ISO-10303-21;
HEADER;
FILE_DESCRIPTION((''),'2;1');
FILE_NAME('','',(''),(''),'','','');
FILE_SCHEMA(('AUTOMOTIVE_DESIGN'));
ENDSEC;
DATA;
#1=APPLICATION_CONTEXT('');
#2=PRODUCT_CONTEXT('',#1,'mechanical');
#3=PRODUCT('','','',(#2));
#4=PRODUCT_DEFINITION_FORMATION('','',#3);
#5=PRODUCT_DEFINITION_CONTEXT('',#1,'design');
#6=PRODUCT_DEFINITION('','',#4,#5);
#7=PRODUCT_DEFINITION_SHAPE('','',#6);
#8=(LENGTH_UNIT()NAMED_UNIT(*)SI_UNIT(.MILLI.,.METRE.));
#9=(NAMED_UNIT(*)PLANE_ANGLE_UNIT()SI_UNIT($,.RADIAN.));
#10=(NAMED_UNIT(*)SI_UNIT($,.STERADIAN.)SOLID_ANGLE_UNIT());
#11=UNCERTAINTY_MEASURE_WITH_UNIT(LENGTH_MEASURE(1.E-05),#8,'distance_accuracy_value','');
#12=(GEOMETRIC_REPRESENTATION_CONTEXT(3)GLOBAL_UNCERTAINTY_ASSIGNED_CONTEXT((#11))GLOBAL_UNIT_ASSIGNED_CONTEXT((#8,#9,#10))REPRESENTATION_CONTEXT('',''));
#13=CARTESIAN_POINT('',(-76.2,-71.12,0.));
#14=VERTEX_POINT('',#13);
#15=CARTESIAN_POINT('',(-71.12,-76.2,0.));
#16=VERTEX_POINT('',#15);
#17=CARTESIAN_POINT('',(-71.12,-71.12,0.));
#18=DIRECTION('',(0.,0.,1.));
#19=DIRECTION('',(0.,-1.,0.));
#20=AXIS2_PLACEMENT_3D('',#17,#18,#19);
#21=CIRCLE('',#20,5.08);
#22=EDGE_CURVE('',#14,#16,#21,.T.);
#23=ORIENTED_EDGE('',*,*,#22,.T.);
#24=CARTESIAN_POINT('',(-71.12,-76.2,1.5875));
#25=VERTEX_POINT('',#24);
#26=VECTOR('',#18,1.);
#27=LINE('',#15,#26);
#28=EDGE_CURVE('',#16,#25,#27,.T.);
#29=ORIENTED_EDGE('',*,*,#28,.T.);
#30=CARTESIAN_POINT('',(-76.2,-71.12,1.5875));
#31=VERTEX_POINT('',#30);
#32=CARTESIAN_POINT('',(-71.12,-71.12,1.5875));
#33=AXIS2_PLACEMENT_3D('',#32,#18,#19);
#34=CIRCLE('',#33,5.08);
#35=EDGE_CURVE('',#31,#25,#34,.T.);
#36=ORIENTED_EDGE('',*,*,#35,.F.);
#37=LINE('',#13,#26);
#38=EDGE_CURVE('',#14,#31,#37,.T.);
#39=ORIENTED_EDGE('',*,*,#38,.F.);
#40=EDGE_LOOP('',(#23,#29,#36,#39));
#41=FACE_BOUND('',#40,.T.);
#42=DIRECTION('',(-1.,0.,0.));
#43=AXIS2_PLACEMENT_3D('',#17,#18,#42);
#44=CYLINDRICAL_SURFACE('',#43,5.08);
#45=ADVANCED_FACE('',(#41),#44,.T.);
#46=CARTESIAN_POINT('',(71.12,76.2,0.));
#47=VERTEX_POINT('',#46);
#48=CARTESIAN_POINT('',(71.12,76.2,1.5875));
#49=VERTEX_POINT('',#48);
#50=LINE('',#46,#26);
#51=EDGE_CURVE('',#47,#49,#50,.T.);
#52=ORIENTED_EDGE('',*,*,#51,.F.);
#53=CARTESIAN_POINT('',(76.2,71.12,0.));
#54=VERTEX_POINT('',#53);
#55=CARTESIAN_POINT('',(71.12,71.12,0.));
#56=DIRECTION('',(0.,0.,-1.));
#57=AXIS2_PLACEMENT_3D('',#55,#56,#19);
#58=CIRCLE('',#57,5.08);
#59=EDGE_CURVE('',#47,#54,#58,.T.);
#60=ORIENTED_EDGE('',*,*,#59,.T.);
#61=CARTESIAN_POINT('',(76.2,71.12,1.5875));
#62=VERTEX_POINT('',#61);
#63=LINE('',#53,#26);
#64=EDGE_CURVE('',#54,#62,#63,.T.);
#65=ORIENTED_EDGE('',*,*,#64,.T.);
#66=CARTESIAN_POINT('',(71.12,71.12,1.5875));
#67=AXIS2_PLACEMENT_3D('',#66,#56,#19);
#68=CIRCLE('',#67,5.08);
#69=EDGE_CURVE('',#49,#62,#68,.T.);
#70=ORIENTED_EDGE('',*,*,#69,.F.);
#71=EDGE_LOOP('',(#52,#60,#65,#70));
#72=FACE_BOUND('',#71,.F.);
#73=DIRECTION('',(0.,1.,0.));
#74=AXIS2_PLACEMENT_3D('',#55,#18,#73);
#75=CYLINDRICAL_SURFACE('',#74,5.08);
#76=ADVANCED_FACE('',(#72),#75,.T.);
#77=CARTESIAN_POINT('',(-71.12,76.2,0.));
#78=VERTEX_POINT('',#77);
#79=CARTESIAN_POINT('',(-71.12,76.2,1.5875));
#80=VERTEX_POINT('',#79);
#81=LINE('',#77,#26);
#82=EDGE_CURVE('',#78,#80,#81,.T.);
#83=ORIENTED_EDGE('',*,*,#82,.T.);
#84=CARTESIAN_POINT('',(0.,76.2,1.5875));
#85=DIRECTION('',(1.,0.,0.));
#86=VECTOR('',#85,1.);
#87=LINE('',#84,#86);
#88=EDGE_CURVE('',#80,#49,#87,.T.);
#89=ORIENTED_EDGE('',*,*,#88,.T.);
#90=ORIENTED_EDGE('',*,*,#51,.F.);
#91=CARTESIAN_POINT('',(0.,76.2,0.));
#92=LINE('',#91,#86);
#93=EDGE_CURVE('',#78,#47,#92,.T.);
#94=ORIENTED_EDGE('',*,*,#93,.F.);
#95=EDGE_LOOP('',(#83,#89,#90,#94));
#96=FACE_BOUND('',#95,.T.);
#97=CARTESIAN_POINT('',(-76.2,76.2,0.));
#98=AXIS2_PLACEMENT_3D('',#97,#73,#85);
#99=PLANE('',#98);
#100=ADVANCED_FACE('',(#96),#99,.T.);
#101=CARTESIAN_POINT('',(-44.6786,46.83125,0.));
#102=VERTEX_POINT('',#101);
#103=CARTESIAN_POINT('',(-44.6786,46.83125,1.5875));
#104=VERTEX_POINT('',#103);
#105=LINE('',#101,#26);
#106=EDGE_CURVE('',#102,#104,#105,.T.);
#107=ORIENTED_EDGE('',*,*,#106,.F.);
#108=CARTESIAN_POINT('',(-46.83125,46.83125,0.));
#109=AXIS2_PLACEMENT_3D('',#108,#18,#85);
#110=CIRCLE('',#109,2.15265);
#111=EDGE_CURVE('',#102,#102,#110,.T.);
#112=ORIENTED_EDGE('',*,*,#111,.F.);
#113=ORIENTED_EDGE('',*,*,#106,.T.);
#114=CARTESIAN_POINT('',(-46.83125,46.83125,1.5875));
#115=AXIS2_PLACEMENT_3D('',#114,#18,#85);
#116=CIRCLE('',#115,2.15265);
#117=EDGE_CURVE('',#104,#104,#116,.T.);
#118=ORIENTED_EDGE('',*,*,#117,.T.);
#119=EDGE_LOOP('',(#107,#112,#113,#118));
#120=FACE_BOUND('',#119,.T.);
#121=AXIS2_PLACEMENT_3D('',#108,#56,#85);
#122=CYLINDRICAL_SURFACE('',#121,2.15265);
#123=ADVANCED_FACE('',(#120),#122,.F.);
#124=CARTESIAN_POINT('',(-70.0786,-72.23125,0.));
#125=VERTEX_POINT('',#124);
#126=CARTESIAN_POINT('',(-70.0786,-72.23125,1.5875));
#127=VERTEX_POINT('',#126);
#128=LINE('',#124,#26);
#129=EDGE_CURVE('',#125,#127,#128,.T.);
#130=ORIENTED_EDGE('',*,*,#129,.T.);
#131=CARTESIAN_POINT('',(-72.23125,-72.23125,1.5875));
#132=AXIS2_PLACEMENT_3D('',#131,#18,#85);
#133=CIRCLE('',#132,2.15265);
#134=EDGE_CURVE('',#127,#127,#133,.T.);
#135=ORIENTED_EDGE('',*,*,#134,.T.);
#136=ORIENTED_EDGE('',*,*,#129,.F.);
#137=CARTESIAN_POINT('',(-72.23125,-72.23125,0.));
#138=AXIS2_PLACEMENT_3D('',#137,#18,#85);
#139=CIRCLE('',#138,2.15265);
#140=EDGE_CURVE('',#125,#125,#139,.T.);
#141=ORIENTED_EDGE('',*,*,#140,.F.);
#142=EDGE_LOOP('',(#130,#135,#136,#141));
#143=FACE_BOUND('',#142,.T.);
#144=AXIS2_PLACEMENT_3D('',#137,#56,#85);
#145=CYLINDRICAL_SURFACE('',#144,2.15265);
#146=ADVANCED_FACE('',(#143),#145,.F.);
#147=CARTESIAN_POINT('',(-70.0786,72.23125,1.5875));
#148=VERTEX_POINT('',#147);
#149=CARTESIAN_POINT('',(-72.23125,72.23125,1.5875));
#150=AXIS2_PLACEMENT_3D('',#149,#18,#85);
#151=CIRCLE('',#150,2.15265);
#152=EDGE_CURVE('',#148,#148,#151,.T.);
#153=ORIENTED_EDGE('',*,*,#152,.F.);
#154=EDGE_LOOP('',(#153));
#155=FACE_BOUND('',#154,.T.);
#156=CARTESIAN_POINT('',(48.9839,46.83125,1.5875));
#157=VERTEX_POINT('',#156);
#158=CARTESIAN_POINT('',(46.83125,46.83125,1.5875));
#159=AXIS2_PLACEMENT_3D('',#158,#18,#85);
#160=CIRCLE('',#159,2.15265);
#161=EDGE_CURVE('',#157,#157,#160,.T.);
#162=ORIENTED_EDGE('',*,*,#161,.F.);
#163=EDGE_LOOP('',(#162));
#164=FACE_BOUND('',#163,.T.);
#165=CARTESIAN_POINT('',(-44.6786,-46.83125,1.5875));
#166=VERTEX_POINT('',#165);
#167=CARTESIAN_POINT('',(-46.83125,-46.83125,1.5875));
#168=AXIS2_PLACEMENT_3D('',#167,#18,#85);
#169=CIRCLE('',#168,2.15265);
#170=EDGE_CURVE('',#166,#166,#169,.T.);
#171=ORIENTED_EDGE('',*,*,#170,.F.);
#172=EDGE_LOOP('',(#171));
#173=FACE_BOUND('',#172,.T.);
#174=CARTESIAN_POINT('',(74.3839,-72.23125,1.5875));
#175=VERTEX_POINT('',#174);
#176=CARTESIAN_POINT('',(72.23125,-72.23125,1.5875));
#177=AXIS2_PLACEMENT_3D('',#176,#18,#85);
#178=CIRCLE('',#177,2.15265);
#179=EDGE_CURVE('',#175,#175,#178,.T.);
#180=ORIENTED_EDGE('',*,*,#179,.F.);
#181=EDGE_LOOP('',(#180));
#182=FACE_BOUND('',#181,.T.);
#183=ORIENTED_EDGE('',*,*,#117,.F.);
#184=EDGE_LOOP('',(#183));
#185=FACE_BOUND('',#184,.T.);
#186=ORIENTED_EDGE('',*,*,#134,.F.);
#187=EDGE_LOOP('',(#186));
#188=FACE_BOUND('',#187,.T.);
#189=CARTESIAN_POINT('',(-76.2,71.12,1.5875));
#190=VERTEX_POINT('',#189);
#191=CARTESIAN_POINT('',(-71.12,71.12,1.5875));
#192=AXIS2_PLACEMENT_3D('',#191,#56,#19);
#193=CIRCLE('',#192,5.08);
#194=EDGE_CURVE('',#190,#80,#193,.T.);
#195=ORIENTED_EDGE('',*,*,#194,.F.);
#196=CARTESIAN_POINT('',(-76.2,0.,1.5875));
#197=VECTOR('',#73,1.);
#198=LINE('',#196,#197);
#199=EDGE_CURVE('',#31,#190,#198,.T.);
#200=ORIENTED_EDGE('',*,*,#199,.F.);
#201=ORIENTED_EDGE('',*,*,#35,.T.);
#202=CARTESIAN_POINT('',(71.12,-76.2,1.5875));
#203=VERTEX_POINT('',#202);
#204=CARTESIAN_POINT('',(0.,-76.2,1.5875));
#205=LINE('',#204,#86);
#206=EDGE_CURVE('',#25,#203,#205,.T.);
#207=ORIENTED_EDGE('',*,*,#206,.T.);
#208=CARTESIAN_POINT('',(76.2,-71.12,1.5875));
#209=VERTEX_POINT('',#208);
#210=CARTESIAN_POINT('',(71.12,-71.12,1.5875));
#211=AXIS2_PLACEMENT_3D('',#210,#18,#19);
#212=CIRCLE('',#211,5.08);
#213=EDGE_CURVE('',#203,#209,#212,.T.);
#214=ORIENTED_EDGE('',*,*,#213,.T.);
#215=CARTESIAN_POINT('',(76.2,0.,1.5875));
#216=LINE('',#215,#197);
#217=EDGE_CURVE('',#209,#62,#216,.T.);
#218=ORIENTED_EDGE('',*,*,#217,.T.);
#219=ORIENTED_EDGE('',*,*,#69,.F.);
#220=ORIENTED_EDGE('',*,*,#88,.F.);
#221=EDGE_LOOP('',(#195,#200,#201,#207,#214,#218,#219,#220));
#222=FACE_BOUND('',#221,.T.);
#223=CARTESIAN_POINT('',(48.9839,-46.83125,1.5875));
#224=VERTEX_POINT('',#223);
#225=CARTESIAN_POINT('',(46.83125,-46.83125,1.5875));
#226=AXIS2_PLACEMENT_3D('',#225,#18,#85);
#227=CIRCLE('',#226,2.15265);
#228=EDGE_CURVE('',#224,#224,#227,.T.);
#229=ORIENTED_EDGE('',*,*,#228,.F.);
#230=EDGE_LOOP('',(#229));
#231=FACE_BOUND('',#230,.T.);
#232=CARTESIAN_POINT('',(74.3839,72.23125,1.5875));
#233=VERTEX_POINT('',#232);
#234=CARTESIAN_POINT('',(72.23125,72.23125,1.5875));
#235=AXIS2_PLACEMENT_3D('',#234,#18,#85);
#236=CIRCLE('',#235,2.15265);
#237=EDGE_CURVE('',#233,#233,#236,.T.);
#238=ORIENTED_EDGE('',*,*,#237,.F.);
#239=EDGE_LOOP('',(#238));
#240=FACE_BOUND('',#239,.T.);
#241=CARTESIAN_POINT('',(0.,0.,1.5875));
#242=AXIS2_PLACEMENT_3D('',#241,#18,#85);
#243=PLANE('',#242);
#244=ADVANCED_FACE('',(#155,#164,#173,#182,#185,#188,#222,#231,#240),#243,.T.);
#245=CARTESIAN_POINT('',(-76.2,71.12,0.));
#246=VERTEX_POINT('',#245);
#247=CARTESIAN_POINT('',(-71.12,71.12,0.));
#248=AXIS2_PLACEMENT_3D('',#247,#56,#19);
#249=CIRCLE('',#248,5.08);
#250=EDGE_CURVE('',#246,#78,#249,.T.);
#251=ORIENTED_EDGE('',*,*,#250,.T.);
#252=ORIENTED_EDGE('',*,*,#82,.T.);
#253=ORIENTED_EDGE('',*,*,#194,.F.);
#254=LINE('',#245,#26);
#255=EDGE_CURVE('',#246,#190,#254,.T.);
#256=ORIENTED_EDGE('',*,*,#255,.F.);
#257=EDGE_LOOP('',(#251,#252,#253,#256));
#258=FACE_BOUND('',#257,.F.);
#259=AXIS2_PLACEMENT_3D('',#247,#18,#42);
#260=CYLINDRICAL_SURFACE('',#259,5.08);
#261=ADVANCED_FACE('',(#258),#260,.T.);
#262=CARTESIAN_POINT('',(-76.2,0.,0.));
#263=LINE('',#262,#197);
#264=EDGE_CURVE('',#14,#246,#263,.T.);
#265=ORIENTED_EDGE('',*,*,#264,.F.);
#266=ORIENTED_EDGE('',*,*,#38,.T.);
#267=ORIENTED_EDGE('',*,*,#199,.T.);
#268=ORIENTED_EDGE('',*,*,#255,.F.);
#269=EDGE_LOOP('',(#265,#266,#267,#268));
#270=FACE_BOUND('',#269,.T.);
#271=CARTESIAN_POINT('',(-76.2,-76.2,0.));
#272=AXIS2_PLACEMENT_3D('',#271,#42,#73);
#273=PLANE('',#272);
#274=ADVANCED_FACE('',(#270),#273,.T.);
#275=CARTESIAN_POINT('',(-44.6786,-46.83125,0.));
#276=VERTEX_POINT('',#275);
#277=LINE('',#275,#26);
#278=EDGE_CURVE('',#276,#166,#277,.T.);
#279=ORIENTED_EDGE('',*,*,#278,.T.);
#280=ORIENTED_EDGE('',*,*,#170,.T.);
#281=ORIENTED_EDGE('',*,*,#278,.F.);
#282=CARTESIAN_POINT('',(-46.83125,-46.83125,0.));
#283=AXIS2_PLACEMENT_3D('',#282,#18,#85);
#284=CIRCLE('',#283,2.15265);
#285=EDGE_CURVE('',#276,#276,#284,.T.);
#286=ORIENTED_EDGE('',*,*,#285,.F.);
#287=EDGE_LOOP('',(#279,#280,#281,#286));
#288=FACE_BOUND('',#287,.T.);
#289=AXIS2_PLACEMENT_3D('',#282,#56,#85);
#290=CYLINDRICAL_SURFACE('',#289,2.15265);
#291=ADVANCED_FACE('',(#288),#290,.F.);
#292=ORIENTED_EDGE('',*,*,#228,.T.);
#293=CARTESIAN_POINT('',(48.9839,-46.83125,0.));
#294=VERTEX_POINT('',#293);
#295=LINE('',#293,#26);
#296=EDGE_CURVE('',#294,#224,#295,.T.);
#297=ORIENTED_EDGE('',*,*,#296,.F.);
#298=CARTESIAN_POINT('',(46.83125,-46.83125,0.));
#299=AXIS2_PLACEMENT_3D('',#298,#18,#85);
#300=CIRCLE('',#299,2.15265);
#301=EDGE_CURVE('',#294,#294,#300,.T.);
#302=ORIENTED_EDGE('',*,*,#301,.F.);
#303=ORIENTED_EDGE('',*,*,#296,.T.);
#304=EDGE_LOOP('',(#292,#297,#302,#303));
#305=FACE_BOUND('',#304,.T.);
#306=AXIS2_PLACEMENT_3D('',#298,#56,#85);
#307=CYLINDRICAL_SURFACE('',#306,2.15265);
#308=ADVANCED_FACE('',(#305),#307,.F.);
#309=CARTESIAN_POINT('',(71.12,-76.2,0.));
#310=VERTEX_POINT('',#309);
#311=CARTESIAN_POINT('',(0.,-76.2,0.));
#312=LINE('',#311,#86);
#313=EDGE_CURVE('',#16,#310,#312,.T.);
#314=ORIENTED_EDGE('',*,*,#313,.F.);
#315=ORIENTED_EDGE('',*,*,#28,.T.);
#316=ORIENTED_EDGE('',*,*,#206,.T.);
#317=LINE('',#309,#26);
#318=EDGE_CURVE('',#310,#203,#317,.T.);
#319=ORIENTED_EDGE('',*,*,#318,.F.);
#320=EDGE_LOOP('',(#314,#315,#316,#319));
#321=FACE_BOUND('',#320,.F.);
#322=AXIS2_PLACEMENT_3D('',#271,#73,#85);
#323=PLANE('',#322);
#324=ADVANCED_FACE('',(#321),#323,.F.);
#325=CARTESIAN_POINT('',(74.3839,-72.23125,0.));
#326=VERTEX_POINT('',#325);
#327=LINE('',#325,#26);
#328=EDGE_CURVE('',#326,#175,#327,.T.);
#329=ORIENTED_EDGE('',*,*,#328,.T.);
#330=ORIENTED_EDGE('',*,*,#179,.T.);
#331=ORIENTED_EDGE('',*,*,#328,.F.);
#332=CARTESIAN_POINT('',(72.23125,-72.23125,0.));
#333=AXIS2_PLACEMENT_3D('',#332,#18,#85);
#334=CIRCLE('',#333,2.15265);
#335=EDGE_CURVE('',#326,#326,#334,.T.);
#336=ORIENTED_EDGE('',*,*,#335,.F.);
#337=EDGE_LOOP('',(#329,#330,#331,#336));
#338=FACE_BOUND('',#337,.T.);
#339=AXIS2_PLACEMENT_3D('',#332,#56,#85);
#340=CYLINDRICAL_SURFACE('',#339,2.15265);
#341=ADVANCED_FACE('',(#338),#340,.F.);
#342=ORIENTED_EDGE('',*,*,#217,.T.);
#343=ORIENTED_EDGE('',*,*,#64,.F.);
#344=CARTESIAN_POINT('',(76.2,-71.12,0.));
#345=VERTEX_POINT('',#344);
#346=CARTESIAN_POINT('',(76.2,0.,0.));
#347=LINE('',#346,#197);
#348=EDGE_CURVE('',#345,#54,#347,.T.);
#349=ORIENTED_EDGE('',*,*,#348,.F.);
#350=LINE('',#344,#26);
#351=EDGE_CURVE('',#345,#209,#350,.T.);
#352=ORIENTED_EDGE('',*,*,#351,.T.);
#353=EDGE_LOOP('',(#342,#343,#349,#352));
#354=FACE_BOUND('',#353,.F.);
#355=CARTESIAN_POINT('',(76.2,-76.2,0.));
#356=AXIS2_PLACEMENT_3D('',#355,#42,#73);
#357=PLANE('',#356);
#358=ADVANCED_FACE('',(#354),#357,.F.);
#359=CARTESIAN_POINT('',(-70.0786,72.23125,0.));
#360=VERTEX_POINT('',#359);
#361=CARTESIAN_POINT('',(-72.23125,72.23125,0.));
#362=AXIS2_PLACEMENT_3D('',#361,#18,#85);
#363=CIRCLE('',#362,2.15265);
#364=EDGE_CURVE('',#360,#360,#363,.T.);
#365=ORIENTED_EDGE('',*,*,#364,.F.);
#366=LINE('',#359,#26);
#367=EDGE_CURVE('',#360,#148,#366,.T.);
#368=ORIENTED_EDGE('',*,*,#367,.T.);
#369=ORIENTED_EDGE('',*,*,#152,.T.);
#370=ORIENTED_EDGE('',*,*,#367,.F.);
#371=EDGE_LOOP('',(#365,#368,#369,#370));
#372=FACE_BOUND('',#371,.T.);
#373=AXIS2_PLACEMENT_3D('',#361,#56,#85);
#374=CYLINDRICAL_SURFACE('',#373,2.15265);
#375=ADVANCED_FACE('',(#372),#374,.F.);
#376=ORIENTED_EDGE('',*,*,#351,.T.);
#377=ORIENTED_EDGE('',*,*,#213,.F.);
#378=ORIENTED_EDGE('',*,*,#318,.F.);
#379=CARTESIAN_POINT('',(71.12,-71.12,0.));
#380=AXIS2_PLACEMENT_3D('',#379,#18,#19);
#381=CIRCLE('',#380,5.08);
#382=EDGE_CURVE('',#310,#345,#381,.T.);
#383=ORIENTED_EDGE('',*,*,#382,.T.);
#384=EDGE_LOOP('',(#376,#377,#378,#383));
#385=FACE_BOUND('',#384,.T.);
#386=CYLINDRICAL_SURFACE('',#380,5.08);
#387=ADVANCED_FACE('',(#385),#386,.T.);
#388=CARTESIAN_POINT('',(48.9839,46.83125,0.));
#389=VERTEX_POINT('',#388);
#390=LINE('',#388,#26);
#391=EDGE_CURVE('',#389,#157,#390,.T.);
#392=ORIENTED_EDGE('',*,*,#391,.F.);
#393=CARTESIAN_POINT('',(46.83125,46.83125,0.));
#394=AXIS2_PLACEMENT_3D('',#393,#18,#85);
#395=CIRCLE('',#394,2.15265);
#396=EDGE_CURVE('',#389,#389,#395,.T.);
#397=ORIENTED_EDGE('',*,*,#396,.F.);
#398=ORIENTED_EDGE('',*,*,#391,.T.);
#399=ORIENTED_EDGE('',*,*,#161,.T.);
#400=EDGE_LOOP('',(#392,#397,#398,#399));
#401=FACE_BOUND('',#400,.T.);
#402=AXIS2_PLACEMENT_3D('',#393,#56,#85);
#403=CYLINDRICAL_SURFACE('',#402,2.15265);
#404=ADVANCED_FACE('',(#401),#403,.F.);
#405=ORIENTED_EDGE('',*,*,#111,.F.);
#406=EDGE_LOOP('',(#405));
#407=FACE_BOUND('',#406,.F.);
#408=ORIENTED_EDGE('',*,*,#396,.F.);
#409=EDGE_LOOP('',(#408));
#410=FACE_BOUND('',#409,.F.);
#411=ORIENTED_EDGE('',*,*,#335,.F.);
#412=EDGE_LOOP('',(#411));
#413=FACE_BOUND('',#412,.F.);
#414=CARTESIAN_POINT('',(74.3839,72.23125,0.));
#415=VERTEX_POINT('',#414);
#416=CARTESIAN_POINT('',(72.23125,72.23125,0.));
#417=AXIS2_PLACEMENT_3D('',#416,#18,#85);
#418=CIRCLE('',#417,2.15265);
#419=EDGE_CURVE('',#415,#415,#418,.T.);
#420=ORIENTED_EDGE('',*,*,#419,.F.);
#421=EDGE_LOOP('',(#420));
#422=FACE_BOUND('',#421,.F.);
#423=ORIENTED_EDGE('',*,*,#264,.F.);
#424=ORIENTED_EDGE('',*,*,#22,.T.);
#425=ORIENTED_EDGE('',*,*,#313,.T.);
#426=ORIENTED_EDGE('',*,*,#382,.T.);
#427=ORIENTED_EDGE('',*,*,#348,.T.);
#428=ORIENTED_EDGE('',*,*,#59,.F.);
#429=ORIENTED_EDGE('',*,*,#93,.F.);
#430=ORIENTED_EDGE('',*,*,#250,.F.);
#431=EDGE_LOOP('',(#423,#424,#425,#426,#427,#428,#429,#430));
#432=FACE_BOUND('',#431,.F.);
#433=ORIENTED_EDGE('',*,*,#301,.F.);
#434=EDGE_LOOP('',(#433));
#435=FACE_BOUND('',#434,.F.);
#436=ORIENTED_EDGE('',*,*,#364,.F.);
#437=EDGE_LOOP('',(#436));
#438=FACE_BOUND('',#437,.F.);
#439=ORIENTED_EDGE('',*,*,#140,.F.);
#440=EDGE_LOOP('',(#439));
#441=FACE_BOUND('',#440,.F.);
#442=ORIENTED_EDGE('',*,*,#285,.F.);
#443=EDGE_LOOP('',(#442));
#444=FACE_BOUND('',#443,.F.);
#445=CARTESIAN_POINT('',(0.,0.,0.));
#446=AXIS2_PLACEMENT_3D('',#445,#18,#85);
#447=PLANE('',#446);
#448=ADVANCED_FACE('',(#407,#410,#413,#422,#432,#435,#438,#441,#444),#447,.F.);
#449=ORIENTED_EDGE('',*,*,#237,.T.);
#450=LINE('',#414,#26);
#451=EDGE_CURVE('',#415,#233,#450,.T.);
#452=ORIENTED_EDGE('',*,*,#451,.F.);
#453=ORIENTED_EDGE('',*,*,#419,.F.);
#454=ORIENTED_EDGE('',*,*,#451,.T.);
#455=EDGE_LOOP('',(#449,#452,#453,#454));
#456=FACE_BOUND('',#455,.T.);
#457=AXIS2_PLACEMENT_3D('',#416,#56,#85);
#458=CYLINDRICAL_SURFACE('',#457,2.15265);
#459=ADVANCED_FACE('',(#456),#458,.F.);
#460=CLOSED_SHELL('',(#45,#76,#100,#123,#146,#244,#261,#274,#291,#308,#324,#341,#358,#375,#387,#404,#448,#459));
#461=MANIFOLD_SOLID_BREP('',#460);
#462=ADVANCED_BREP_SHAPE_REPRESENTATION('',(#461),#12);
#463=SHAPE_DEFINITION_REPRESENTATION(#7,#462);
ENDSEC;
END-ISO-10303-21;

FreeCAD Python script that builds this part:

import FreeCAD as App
import Part
import Sketcher

V = App.Vector
Q = App.Units.Quantity


def edges_at(feature, points):
    """Names of the edges that pass closest to the given points."""
    edges = feature.Shape.Edges
    near = lambda p: min(range(len(edges)), key=lambda i: edges[i].distToShape(Part.Vertex(*p))[0])
    return sorted({f"Edge{near(p) + 1}" for p in points})


def add_polygon(sketch, points):
    """Adds a closed chain of lines whose ends are joined by coincident constraints."""
    first, n = sketch.GeometryCount, len(points)
    for a, b in zip(points, points[1:] + points[:1]):
        sketch.addGeometry(Part.LineSegment(App.Vector(*a, 0), App.Vector(*b, 0)), False)
    for i in range(n):
        sketch.addConstraint(Sketcher.Constraint("Coincident", first + i, 2, first + (i + 1) % n, 1))

doc = App.newDocument("Part")
body = doc.addObject("PartDesign::Body", "Body")

sketch1 = doc.addObject("Sketcher::SketchObject", "Sketch")
body.addObject(sketch1)
sketch1.AttachmentSupport = (doc.XY_Plane, [""])
sketch1.MapMode = "FlatFace"
add_polygon(sketch1, [(-76.2, 76.2), (-76.2, -76.2), (76.2, -76.2), (76.2, 76.2)])
sketch1.addGeometry(Part.Circle(V(-72.2, -72.2, 0), V(0, 0, 1), 2.2), False)
sketch1.addGeometry(Part.Circle(V(-46.8, -46.8, 0), V(0, 0, 1), 2.2), False)
sketch1.addGeometry(Part.Circle(V(72.2, -72.2, 0), V(0, 0, 1), 2.2), False)
sketch1.addGeometry(Part.Circle(V(46.8, -46.8, 0), V(0, 0, 1), 2.2), False)
sketch1.addGeometry(Part.Circle(V(-46.8, 46.8, 0), V(0, 0, 1), 2.2), False)
sketch1.addGeometry(Part.Circle(V(-72.2, 72.2, 0), V(0, 0, 1), 2.2), False)
sketch1.addGeometry(Part.Circle(V(46.8, 46.8, 0), V(0, 0, 1), 2.2), False)
sketch1.addGeometry(Part.Circle(V(72.2, 72.2, 0), V(0, 0, 1), 2.2), False)
sketch1.addConstraint(Sketcher.Constraint("Vertical", 0))
sketch1.addConstraint(Sketcher.Constraint("Horizontal", 1))
sketch1.addConstraint(Sketcher.Constraint("Vertical", 2))
sketch1.addConstraint(Sketcher.Constraint("Horizontal", 3))
sketch1.addConstraint(Sketcher.Constraint("Equal", 4, 5))
sketch1.addConstraint(Sketcher.Constraint("Equal", 5, 6))
sketch1.addConstraint(Sketcher.Constraint("Equal", 6, 7))
sketch1.addConstraint(Sketcher.Constraint("Equal", 7, 8))
sketch1.addConstraint(Sketcher.Constraint("Equal", 8, 9))
sketch1.addConstraint(Sketcher.Constraint("Equal", 9, 10))
sketch1.addConstraint(Sketcher.Constraint("Equal", 10, 11))
sketch1.addConstraint(Sketcher.Constraint("Symmetric", 7, 3, 8, 3, -1, 1))
sketch1.addConstraint(Sketcher.Constraint("Symmetric", 6, 3, 9, 3, -1, 1))
sketch1.addConstraint(Sketcher.Constraint("Symmetric", 5, 3, 10, 3, -1, 1))
sketch1.addConstraint(Sketcher.Constraint("Symmetric", 4, 3, 11, 3, -1, 1))
sketch1.addConstraint(Sketcher.Constraint("Symmetric", 0, 2, 2, 2, -1, 1))
sketch1.addConstraint(Sketcher.Constraint("Symmetric", 4, 3, 6, 3, -2))
sketch1.addConstraint(Sketcher.Constraint("Symmetric", 5, 3, 7, 3, -2))
sketch1.addConstraint(Sketcher.Constraint("Equal", 3, 0))
sketch1.addConstraint(Sketcher.Constraint("DistanceX", 1, 1, 1, 2, Q("6 in")))
sketch1.addConstraint(Sketcher.Constraint("DistanceX", 4, 3, 5, 3, Q("1 in")))
sketch1.addConstraint(Sketcher.Constraint("DistanceY", 4, 3, 5, 3, Q("1 in")))
sketch1.addConstraint(Sketcher.Constraint("Diameter", 4, Q("0.1695 in")))
sketch1.addConstraint(Sketcher.Constraint("DistanceX", 4, 3, -1, 1, Q("2.84375 in")))
sketch1.addConstraint(Sketcher.Constraint("DistanceY", 4, 3, -1, 1, Q("2.84375 in")))
pad1 = doc.addObject("PartDesign::Pad", "Pad")
body.addObject(pad1)
pad1.Profile = sketch1
pad1.Length = Q("0.0625 in")
doc.recompute()

fillet = doc.addObject("PartDesign::Fillet", "Fillet")
body.addObject(fillet)
fillet.Base = (pad1, edges_at(pad1, [
    (-76.2, 76.2, 0.794),
    (76.2, 76.2, 0.794),
    (76.2, -76.2, 0.794),
    (-76.2, -76.2, 0.794),
]))
fillet.Radius = Q("0.2 in")

doc.recompute()
